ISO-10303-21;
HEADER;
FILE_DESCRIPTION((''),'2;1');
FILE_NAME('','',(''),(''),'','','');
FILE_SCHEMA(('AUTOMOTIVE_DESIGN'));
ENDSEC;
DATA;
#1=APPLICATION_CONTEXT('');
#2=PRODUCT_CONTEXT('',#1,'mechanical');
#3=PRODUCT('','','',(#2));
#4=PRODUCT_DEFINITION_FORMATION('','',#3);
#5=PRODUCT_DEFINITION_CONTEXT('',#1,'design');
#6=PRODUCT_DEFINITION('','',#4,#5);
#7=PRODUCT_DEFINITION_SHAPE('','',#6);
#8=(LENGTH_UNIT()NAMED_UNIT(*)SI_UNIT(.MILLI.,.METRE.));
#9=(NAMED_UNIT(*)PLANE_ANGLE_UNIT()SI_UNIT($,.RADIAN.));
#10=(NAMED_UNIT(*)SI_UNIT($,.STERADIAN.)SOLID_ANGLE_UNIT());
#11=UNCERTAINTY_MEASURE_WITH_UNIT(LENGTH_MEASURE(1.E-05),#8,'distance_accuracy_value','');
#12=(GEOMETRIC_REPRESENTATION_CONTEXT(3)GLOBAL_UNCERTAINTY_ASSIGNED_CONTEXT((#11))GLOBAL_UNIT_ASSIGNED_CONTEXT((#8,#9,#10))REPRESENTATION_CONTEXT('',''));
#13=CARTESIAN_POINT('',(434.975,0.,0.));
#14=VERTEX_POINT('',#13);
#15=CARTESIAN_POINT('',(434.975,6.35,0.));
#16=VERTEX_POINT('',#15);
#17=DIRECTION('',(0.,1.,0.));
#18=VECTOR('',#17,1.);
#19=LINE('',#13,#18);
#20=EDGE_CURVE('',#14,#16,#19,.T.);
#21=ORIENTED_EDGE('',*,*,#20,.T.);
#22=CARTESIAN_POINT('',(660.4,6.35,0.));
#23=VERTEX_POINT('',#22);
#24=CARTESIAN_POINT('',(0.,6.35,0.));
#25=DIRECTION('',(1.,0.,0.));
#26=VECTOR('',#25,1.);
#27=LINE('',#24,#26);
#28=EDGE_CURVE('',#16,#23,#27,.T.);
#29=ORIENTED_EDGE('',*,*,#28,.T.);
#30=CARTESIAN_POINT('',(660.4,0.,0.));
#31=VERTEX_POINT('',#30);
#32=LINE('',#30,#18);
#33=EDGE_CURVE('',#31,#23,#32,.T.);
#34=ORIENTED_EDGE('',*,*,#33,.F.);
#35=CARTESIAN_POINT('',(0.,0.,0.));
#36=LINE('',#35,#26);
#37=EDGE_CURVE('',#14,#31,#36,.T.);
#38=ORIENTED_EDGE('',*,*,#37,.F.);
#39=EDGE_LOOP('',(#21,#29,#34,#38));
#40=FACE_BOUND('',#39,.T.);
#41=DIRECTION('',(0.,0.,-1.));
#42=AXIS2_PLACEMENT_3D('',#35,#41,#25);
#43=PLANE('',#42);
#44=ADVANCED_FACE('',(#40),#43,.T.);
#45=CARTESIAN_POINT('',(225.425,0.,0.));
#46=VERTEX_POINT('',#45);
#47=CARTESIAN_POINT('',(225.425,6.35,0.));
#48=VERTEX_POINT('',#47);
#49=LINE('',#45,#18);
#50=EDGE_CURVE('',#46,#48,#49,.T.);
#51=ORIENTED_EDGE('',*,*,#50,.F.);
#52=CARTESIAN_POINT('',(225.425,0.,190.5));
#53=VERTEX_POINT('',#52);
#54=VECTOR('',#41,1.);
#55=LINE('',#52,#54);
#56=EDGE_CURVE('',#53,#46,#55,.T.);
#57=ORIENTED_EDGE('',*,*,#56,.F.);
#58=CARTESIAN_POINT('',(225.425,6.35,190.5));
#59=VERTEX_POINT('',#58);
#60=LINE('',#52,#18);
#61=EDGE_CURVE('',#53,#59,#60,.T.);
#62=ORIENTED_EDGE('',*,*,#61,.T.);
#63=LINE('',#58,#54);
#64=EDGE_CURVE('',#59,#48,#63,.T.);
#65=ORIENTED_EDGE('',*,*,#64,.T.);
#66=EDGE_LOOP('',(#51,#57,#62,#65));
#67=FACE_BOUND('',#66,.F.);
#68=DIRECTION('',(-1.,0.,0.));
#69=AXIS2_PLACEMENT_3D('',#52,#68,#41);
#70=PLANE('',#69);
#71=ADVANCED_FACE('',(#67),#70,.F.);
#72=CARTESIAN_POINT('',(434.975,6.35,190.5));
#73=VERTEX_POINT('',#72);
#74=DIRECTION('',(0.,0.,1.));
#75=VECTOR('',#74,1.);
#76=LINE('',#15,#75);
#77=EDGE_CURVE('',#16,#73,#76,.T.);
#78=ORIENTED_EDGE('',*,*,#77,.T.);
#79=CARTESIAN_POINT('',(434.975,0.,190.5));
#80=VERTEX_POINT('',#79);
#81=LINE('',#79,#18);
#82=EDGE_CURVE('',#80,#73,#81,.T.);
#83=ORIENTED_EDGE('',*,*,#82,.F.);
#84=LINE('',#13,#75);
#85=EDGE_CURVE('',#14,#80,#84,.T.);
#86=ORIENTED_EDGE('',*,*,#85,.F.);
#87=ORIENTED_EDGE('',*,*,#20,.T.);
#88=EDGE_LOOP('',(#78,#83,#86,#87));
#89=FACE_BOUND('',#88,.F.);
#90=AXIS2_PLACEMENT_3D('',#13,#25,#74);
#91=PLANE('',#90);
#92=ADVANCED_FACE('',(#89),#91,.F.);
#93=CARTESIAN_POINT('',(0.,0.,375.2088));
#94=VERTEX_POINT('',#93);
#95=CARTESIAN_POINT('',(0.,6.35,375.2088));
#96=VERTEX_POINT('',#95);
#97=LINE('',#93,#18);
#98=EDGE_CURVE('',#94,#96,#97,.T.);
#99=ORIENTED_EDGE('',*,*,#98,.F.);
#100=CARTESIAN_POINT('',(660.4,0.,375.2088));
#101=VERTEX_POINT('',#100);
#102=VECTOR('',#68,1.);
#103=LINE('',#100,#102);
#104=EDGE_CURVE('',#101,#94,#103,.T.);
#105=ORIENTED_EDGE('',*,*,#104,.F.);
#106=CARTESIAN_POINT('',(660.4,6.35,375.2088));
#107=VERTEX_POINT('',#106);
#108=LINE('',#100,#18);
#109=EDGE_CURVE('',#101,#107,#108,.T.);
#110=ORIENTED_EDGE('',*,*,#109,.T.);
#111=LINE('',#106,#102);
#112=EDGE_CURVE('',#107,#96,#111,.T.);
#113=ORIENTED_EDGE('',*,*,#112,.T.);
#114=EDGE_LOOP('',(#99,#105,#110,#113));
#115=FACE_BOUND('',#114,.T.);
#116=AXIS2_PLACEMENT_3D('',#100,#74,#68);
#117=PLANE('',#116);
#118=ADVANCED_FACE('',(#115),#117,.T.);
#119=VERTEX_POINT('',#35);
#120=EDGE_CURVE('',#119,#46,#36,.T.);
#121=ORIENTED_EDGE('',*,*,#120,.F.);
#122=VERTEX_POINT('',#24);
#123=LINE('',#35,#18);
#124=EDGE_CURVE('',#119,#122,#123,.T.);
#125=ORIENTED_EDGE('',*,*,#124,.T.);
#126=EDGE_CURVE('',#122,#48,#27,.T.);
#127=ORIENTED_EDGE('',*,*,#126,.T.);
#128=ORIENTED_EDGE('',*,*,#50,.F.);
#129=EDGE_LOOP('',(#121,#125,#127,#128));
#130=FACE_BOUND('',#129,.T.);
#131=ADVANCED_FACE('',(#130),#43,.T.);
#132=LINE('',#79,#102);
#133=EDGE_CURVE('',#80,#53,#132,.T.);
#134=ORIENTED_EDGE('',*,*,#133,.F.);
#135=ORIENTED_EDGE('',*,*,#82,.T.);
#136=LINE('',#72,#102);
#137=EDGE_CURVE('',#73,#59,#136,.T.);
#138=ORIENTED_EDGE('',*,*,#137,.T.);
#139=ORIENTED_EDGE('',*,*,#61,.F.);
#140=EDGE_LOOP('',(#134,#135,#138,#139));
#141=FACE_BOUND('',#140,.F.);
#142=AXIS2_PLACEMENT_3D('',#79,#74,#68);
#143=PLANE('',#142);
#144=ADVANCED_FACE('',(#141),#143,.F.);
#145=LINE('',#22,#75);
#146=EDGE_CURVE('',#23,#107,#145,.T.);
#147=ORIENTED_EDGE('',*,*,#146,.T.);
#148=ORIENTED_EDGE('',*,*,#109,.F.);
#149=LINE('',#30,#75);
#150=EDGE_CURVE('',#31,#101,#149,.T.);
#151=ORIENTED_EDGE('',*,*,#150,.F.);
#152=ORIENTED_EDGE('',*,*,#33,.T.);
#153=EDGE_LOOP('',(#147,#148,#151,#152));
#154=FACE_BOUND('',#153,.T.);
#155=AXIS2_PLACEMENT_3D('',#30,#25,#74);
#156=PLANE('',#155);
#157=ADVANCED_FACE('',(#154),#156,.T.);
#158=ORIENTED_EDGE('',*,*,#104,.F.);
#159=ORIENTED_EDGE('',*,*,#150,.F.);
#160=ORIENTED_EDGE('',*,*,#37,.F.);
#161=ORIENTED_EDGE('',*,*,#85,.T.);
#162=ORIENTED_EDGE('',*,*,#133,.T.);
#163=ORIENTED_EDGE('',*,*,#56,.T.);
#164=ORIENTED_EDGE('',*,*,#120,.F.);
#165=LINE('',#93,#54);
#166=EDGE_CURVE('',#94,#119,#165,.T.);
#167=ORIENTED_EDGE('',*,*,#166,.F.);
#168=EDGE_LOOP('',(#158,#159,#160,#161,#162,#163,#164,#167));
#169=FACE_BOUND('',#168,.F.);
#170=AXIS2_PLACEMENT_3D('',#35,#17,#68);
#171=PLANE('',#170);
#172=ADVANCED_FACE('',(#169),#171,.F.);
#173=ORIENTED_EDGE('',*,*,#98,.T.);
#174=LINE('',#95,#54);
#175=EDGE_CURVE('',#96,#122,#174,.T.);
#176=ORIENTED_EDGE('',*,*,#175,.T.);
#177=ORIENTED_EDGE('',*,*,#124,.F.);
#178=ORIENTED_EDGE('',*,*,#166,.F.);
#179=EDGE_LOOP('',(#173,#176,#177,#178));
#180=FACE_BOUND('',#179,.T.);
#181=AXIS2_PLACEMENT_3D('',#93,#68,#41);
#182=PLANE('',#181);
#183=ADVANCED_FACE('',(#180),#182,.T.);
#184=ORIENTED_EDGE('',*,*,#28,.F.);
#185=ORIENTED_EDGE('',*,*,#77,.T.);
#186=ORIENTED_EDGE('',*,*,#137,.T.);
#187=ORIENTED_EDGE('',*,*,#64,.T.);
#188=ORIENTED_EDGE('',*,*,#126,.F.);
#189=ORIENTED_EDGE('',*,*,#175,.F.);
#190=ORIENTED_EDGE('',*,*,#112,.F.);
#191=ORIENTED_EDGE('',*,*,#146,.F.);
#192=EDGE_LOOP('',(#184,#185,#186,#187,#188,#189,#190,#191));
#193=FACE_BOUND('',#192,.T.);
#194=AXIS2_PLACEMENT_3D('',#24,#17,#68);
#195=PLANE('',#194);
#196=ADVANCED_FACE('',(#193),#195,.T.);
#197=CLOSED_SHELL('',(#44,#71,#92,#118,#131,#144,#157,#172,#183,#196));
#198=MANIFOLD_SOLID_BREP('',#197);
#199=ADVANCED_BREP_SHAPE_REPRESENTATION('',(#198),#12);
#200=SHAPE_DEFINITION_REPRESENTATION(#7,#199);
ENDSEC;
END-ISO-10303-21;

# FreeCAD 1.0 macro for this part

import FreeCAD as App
import Part
import Sketcher
Q = App.Units.Quantity

doc = App.newDocument("Part")
body = doc.addObject("PartDesign::Body", "Body")

# Sketch on XZ plane
sketch1 = doc.addObject("Sketcher::SketchObject", "Sketch")
body.addObject(sketch1)
sketch1.AttachmentSupport = (doc.XZ_Plane, [""])
sketch1.MapMode = "FlatFace"
sketch1.addGeometry([
    Part.LineSegment(App.Vector(660, 0, 0), App.Vector(0, 0, 0)),
    Part.LineSegment(App.Vector(0, 0, 0), App.Vector(0, 375, 0)),
    Part.LineSegment(App.Vector(0, 375, 0), App.Vector(660, 375, 0)),
    Part.LineSegment(App.Vector(660, 375, 0), App.Vector(660, 0, 0)),
], False)
sketch1.addConstraint([
    Sketcher.Constraint("Coincident", 0, 2, 1, 1),
    Sketcher.Constraint("Coincident", 1, 2, 2, 1),
    Sketcher.Constraint("Coincident", 2, 2, 3, 1),
    Sketcher.Constraint("Coincident", 3, 2, 0, 1),
    Sketcher.Constraint("Horizontal", 0),
    Sketcher.Constraint("Vertical", 1),
    Sketcher.Constraint("Horizontal", 2),
    Sketcher.Constraint("Vertical", 3),
    Sketcher.Constraint("Coincident", 0, 2, -1, 1),
    Sketcher.Constraint("DistanceX", 0, 2, 0, 1, Q("26 in")),
    Sketcher.Constraint("DistanceY", 1, 1, 1, 2, Q("14.772 in")),
])
pad1 = doc.addObject("PartDesign::Pad", "Pad")
body.addObject(pad1)
pad1.Profile = sketch1
pad1.Length = Q("0.25 in")
pad1.Reversed = True

# Sketch on XZ plane
sketch2 = doc.addObject("Sketcher::SketchObject", "Sketch001")
body.addObject(sketch2)
sketch2.AttachmentSupport = (doc.XZ_Plane, [""])
sketch2.MapMode = "FlatFace"
sketch2.addGeometry([
    Part.LineSegment(App.Vector(225, 0, 0), App.Vector(435, 0, 0)),
    Part.LineSegment(App.Vector(435, 0, 0), App.Vector(435, 190, 0)),
    Part.LineSegment(App.Vector(435, 190, 0), App.Vector(225, 190, 0)),
    Part.LineSegment(App.Vector(225, 190, 0), App.Vector(225, 0, 0)),
], False)
sketch2.addConstraint([
    Sketcher.Constraint("Coincident", 0, 2, 1, 1),
    Sketcher.Constraint("Coincident", 1, 2, 2, 1),
    Sketcher.Constraint("Coincident", 2, 2, 3, 1),
    Sketcher.Constraint("Coincident", 3, 2, 0, 1),
    Sketcher.Constraint("Horizontal", 0),
    Sketcher.Constraint("Vertical", 1),
    Sketcher.Constraint("Horizontal", 2),
    Sketcher.Constraint("Vertical", 3),
    Sketcher.Constraint("PointOnObject", 0, 2, -1),
    Sketcher.Constraint("DistanceY", 1, 1, 1, 2, Q("7.5 in")),
    Sketcher.Constraint("DistanceX", 0, 1, 0, 2, Q("8.25 in")),
    Sketcher.Constraint("DistanceX", -1, 1, 2, 2, Q("8.875 in")),
])
pocket1 = doc.addObject("PartDesign::Pocket", "Pocket")
body.addObject(pocket1)
pocket1.Profile = sketch2
pocket1.Length = Q("0.25 in")

doc.recompute()
